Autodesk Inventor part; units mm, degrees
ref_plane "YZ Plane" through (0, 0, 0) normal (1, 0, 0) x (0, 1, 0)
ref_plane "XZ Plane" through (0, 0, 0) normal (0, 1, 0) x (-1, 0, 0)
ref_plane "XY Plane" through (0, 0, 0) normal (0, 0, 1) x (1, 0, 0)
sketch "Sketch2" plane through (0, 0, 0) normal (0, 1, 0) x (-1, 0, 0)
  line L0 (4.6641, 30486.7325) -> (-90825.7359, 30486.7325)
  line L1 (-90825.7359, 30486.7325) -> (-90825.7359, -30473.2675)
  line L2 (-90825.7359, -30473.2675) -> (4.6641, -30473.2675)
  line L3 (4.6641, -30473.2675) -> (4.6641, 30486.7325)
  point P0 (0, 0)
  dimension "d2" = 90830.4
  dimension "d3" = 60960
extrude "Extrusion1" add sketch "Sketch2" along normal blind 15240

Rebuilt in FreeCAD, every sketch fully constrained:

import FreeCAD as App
import Part
import Sketcher
from FreeCAD import Vector
Q = App.Units.Quantity


def add_polygon(sketch, points):
    """Adds a closed chain of lines whose ends are joined by coincident constraints."""
    first, n = sketch.GeometryCount, len(points)
    for a, b in zip(points, points[1:] + points[:1]):
        sketch.addGeometry(Part.LineSegment(App.Vector(*a, 0), App.Vector(*b, 0)), False)
    for i in range(n):
        sketch.addConstraint(Sketcher.Constraint("Coincident", first + i, 2, first + (i + 1) % n, 1))

doc = App.newDocument("Part")
body = doc.addObject("PartDesign::Body", "Body")

# Sketch on XZ plane
sketch1 = body.newObject("Sketcher::SketchObject", "Sketch")
sketch1.AttachmentSupport = (doc.getObject("XZ_Plane"), [""])
sketch1.MapMode = "FlatFace"
add_polygon(sketch1, [(-5, -30473), (-5, 30487), (90826, 30487), (90826, -30473)])  # lines 0-3
sketch1.addConstraint(Sketcher.Constraint("Vertical", 0))
sketch1.addConstraint(Sketcher.Constraint("Horizontal", 1))
sketch1.addConstraint(Sketcher.Constraint("Vertical", 2))
sketch1.addConstraint(Sketcher.Constraint("Horizontal", 3))
sketch1.addConstraint(Sketcher.Constraint("DistanceX", 1, 1, 1, 2, Q("3576 in")))
sketch1.addConstraint(Sketcher.Constraint("DistanceY", 0, 1, 0, 2, Q("2400 in")))
sketch1.addConstraint(Sketcher.Constraint("DistanceX", 0, 2, -1, 1, Q("4.664 mm")))
sketch1.addConstraint(Sketcher.Constraint("DistanceY", -1, 1, 0, 2, Q("30486.7325 mm")))
pad1 = body.newObject("PartDesign::Pad", "Pad")
pad1.Profile = sketch1
pad1.Length = Q("600 in")
pad1.Reversed = True

doc.recompute()
